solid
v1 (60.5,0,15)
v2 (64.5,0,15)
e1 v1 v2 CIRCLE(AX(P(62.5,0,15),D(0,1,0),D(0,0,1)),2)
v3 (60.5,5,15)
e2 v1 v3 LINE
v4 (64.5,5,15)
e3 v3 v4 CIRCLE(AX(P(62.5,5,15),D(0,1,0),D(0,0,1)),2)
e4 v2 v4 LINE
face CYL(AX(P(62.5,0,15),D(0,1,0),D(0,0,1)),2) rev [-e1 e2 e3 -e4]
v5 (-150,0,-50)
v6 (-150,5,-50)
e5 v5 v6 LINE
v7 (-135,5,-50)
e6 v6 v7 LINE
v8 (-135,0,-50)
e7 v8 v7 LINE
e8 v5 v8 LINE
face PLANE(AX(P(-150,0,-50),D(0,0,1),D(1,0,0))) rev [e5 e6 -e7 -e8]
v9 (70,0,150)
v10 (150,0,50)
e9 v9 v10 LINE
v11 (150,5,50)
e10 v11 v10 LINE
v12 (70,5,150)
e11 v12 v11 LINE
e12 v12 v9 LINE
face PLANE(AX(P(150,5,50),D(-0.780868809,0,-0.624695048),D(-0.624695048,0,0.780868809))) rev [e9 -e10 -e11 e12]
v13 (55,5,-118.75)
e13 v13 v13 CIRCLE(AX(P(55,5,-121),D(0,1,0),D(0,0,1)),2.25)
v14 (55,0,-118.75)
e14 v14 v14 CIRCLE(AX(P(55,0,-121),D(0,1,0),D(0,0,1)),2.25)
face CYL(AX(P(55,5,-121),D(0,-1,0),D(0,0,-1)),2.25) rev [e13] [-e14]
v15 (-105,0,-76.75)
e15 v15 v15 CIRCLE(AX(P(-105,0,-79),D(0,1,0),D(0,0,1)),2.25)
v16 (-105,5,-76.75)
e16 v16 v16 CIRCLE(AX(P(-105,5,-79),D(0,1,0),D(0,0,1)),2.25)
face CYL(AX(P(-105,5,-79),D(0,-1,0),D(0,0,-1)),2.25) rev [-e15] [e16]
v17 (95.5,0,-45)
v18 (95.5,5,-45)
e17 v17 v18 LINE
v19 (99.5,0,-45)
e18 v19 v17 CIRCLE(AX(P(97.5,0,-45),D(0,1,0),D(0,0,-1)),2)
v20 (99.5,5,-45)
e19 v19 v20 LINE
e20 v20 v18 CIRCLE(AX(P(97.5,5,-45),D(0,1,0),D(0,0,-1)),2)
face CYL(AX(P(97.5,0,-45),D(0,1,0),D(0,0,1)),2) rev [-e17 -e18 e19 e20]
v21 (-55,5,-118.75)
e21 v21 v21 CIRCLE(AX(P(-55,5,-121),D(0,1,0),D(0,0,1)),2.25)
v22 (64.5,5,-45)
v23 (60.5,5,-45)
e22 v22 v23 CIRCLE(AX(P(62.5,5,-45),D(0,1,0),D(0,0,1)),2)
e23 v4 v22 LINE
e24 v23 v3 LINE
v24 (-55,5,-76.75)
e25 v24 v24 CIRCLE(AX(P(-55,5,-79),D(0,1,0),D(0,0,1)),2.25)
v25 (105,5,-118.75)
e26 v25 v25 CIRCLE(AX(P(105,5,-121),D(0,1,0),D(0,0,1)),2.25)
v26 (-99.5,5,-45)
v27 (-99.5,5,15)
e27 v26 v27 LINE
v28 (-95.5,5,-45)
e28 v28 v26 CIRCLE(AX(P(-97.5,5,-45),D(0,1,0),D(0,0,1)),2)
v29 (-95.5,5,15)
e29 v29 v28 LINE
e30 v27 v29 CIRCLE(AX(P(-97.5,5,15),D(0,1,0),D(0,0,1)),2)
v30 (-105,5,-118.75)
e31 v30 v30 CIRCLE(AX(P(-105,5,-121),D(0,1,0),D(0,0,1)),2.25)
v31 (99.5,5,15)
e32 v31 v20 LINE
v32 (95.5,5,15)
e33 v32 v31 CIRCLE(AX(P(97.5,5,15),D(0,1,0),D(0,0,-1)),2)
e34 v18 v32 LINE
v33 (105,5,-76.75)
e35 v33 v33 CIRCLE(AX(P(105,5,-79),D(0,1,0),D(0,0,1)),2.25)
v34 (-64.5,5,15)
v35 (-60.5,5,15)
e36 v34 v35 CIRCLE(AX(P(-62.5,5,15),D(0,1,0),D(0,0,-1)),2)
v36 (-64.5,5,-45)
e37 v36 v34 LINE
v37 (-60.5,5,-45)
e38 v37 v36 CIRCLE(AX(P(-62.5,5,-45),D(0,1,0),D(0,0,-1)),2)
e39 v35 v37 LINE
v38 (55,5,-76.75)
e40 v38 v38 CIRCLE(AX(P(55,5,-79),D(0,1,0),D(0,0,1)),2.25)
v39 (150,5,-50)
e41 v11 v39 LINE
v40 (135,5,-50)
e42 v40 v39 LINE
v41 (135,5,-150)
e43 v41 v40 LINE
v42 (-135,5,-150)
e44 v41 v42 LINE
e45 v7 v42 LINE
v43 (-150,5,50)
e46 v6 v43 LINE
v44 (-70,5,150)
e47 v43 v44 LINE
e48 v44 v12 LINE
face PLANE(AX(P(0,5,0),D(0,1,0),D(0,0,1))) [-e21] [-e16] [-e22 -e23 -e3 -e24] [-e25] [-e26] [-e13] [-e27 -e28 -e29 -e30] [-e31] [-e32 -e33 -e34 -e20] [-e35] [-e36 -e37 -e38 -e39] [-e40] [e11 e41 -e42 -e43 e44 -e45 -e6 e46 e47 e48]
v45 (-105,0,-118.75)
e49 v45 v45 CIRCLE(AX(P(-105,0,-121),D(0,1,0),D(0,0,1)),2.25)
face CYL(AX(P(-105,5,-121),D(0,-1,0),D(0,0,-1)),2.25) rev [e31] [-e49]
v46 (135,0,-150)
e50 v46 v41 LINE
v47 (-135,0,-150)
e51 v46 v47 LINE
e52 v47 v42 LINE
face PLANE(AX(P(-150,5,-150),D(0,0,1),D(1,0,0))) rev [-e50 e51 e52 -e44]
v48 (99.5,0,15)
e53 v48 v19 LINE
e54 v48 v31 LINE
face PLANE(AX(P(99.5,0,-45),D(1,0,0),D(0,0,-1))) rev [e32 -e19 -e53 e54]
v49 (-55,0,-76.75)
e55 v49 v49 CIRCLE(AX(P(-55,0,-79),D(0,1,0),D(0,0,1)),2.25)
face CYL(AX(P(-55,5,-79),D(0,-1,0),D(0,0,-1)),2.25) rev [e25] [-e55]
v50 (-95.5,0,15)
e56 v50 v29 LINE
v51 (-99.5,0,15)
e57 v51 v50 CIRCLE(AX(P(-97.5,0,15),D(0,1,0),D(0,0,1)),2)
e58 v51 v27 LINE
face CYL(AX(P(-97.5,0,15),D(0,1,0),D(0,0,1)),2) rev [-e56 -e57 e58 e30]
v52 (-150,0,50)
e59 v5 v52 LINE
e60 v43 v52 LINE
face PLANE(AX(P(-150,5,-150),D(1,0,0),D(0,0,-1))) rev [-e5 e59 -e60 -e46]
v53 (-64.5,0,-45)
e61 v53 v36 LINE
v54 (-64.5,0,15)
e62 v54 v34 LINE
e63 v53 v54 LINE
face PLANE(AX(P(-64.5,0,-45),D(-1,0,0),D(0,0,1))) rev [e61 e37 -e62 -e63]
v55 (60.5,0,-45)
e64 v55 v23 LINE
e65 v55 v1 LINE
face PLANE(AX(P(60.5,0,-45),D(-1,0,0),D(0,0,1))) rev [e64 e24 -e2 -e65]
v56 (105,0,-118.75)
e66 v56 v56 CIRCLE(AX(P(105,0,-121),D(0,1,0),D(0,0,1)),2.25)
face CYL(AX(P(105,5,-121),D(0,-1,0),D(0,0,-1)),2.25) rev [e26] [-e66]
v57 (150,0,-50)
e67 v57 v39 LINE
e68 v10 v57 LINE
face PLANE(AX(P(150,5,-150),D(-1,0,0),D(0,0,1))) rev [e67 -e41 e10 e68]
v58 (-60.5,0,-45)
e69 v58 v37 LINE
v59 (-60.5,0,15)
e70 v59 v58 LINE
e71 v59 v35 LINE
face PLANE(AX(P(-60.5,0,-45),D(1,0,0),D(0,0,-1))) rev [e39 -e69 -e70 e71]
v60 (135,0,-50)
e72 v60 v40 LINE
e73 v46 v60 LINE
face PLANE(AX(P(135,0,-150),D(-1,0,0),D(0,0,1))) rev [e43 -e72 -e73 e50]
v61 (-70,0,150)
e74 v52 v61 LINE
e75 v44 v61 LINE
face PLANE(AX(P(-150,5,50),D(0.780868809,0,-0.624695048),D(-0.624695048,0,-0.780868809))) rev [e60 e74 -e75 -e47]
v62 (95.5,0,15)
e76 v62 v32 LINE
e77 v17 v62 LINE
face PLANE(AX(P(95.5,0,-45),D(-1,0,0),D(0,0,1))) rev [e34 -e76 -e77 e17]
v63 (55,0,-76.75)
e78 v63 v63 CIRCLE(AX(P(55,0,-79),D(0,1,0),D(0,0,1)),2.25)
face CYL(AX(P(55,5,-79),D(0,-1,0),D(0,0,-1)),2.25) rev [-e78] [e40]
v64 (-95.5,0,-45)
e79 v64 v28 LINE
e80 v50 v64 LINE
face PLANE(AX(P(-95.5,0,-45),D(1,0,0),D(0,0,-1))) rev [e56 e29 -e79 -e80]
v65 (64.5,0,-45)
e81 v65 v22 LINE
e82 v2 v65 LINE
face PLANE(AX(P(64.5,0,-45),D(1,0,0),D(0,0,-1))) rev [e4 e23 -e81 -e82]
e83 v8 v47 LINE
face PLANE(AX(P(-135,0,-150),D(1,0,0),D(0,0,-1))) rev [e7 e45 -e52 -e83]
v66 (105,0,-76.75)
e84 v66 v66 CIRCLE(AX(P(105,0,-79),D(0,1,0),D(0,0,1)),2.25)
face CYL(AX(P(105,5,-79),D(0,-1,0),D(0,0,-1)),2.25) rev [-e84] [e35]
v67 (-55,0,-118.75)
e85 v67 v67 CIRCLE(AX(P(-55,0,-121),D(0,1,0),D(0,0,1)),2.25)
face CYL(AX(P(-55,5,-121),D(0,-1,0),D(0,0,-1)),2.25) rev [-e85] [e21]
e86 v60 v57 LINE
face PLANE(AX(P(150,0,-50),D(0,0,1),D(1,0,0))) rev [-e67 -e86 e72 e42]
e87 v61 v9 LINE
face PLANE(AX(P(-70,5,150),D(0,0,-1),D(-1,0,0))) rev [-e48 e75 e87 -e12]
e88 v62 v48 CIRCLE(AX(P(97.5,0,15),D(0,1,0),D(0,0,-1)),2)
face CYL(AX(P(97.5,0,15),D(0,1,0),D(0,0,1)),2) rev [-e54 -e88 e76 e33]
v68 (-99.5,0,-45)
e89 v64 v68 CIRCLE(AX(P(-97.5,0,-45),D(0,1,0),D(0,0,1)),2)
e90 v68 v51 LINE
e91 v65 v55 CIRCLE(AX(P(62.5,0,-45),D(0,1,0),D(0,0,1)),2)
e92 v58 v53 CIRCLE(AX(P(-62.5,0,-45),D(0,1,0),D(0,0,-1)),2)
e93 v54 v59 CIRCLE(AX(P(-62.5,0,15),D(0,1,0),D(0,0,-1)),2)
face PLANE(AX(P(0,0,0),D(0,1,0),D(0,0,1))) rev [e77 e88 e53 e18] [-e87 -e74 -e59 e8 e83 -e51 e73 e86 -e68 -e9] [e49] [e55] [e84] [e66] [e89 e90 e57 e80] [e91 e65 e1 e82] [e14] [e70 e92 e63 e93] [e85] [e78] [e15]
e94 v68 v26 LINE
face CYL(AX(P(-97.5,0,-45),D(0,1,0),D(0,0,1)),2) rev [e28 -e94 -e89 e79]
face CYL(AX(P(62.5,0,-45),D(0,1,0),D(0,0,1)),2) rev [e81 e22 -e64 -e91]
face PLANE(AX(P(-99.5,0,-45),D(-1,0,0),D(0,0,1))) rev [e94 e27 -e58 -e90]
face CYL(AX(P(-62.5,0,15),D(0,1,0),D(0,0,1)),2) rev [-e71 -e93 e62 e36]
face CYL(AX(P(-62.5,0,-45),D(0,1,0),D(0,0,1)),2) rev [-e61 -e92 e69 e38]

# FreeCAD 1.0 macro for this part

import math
import FreeCAD as App
import Part
import Sketcher
Q = App.Units.Quantity

doc = App.newDocument("Part")
body = doc.addObject("PartDesign::Body", "Body")

# Sketch on XZ plane
sketch1 = body.newObject("Sketcher::SketchObject", "Sketch")
sketch1.AttachmentSupport = (doc.getObject("XZ_Plane"), [""])
sketch1.MapMode = "FlatFace"
sketch1.addGeometry(Part.LineSegment(App.Vector(150, -150, 0), App.Vector(-150, -150, 0)), False)
sketch1.addGeometry(Part.LineSegment(App.Vector(-150, -150, 0), App.Vector(-150, 50, 0)), False)
sketch1.addGeometry(Part.LineSegment(App.Vector(-150, 50, 0), App.Vector(-70, 150, 0)), False)
sketch1.addGeometry(Part.LineSegment(App.Vector(-70, 150, 0), App.Vector(70, 150, 0)), False)
sketch1.addGeometry(Part.LineSegment(App.Vector(70, 150, 0), App.Vector(150, 50, 0)), False)
sketch1.addGeometry(Part.LineSegment(App.Vector(150, 50, 0), App.Vector(150, -150, 0)), False)
sketch1.addGeometry(Part.Circle(App.Vector(105, -79, 0), App.Vector(0, 0, 1), 2.2), False)
sketch1.addGeometry(Part.Circle(App.Vector(55, -79, 0), App.Vector(0, 0, 1), 2.2), False)
sketch1.addGeometry(Part.Circle(App.Vector(-55, -79, 0), App.Vector(0, 0, 1), 2.2), False)
sketch1.addGeometry(Part.Circle(App.Vector(-105, -79, 0), App.Vector(0, 0, 1), 2.2), False)
sketch1.addGeometry(Part.Circle(App.Vector(105, -121, 0), App.Vector(0, 0, 1), 2.2), False)
sketch1.addGeometry(Part.Circle(App.Vector(55, -121, 0), App.Vector(0, 0, 1), 2.2), False)
sketch1.addGeometry(Part.Circle(App.Vector(-55, -121, 0), App.Vector(0, 0, 1), 2.2), False)
sketch1.addGeometry(Part.Circle(App.Vector(-105, -121, 0), App.Vector(0, 0, 1), 2.2), False)
sketch1.addConstraint(Sketcher.Constraint("Coincident", 0, 2, 1, 1))
sketch1.addConstraint(Sketcher.Constraint("Coincident", 1, 2, 2, 1))
sketch1.addConstraint(Sketcher.Constraint("Coincident", 2, 2, 3, 1))
sketch1.addConstraint(Sketcher.Constraint("Coincident", 3, 2, 4, 1))
sketch1.addConstraint(Sketcher.Constraint("Coincident", 4, 2, 5, 1))
sketch1.addConstraint(Sketcher.Constraint("Coincident", 5, 2, 0, 1))
sketch1.addConstraint(Sketcher.Constraint("Horizontal", 0))
sketch1.addConstraint(Sketcher.Constraint("Vertical", 1))
sketch1.addConstraint(Sketcher.Constraint("Horizontal", 3))
sketch1.addConstraint(Sketcher.Constraint("Vertical", 5))
sketch1.addConstraint(Sketcher.Constraint("Equal", 6, 7))
sketch1.addConstraint(Sketcher.Constraint("Equal", 7, 8))
sketch1.addConstraint(Sketcher.Constraint("Equal", 8, 9))
sketch1.addConstraint(Sketcher.Constraint("Equal", 9, 10))
sketch1.addConstraint(Sketcher.Constraint("Equal", 10, 11))
sketch1.addConstraint(Sketcher.Constraint("Equal", 11, 12))
sketch1.addConstraint(Sketcher.Constraint("Equal", 12, 13))
sketch1.addConstraint(Sketcher.Constraint("Symmetric", 7, 3, 8, 3, -2))
sketch1.addConstraint(Sketcher.Constraint("Symmetric", 6, 3, 9, 3, -2))
sketch1.addConstraint(Sketcher.Constraint("Symmetric", 11, 3, 12, 3, -2))
sketch1.addConstraint(Sketcher.Constraint("Symmetric", 10, 3, 13, 3, -2))
sketch1.addConstraint(Sketcher.Constraint("Symmetric", 1, 2, 4, 2, -2))
sketch1.addConstraint(Sketcher.Constraint("Horizontal", 6, 3, 7, 3))
sketch1.addConstraint(Sketcher.Constraint("Horizontal", 10, 3, 11, 3))
sketch1.addConstraint(Sketcher.Constraint("Vertical", 6, 3, 10, 3))
sketch1.addConstraint(Sketcher.Constraint("Vertical", 7, 3, 11, 3))
sketch1.addConstraint(Sketcher.Constraint("Equal", 2, 4))
sketch1.addConstraint(Sketcher.Constraint("Diameter", 6, Q("4.5 mm")))
sketch1.addConstraint(Sketcher.Constraint("DistanceX", 0, 2, 0, 1, Q("300 mm")))
sketch1.addConstraint(Sketcher.Constraint("DistanceX", 3, 1, 3, 2, Q("140 mm")))
sketch1.addConstraint(Sketcher.Constraint("DistanceY", 1, 1, 1, 2, Q("200 mm")))
sketch1.addConstraint(Sketcher.Constraint("DistanceX", -1, 1, 6, 3, Q("105 mm")))
sketch1.addConstraint(Sketcher.Constraint("DistanceY", 6, 3, -1, 1, Q("79 mm")))
sketch1.addConstraint(Sketcher.Constraint("DistanceX", -1, 1, 7, 3, Q("55 mm")))
sketch1.addConstraint(Sketcher.Constraint("DistanceY", 10, 3, -1, 1, Q("121 mm")))
sketch1.addConstraint(Sketcher.Constraint("DistanceY", 0, 2, -1, 1, Q("150 mm")))
sketch1.addConstraint(Sketcher.Constraint("DistanceY", -1, 1, 2, 2, Q("150 mm")))
pad1 = body.newObject("PartDesign::Pad", "Pad")
pad1.Profile = sketch1
pad1.Length = 5
pad1.Reversed = True

# Sketch on XZ plane
sketch2 = body.newObject("Sketcher::SketchObject", "Sketch001")
sketch2.AttachmentSupport = (doc.getObject("XZ_Plane"), [""])
sketch2.MapMode = "FlatFace"
sketch2.AttachmentOffset = App.Placement(App.Vector(0, 0, -5), App.Rotation())
sketch2.addGeometry(Part.LineSegment(App.Vector(-150, -150, 0), App.Vector(-150, -50, 0)), False)
sketch2.addGeometry(Part.LineSegment(App.Vector(-150, -50, 0), App.Vector(-135, -50, 0)), False)
sketch2.addGeometry(Part.LineSegment(App.Vector(-135, -50, 0), App.Vector(-135, -150, 0)), False)
sketch2.addGeometry(Part.LineSegment(App.Vector(-135, -150, 0), App.Vector(-150, -150, 0)), False)
sketch2.addGeometry(Part.LineSegment(App.Vector(135, -150, 0), App.Vector(135, -50, 0)), False)
sketch2.addGeometry(Part.LineSegment(App.Vector(135, -50, 0), App.Vector(150, -50, 0)), False)
sketch2.addGeometry(Part.LineSegment(App.Vector(150, -50, 0), App.Vector(150, -150, 0)), False)
sketch2.addGeometry(Part.LineSegment(App.Vector(150, -150, 0), App.Vector(135, -150, 0)), False)
sketch2.addConstraint(Sketcher.Constraint("Coincident", 0, 2, 1, 1))
sketch2.addConstraint(Sketcher.Constraint("Coincident", 1, 2, 2, 1))
sketch2.addConstraint(Sketcher.Constraint("Coincident", 2, 2, 3, 1))
sketch2.addConstraint(Sketcher.Constraint("Coincident", 3, 2, 0, 1))
sketch2.addConstraint(Sketcher.Constraint("Coincident", 4, 2, 5, 1))
sketch2.addConstraint(Sketcher.Constraint("Coincident", 5, 2, 6, 1))
sketch2.addConstraint(Sketcher.Constraint("Coincident", 6, 2, 7, 1))
sketch2.addConstraint(Sketcher.Constraint("Coincident", 7, 2, 4, 1))
sketch2.addConstraint(Sketcher.Constraint("Vertical", 0))
sketch2.addConstraint(Sketcher.Constraint("Horizontal", 1))
sketch2.addConstraint(Sketcher.Constraint("Vertical", 2))
sketch2.addConstraint(Sketcher.Constraint("Horizontal", 3))
sketch2.addConstraint(Sketcher.Constraint("Vertical", 4))
sketch2.addConstraint(Sketcher.Constraint("Horizontal", 5))
sketch2.addConstraint(Sketcher.Constraint("Vertical", 6))
sketch2.addConstraint(Sketcher.Constraint("Horizontal", 7))
sketch2.addConstraint(Sketcher.Constraint("Symmetric", 1, 2, 4, 2, -2))
sketch2.addConstraint(Sketcher.Constraint("Symmetric", 3, 2, 6, 2, -2))
sketch2.addConstraint(Sketcher.Constraint("DistanceX", 1, 1, 1, 2, Q("15 mm")))
sketch2.addConstraint(Sketcher.Constraint("DistanceY", 0, 1, 0, 2, Q("100 mm")))
sketch2.addConstraint(Sketcher.Constraint("DistanceX", 0, 2, -1, 1, Q("150 mm")))
sketch2.addConstraint(Sketcher.Constraint("DistanceY", 0, 2, -1, 1, Q("50 mm")))
pocket1 = body.newObject("PartDesign::Pocket", "Pocket")
pocket1.Profile = sketch2
pocket1.Length = 5
pocket1.Reversed = True

# Sketch on XZ plane
sketch3 = body.newObject("Sketcher::SketchObject", "Sketch002")
sketch3.AttachmentSupport = (doc.getObject("XZ_Plane"), [""])
sketch3.MapMode = "FlatFace"
sketch3.AttachmentOffset = App.Placement(App.Vector(0, 0, -5), App.Rotation())
sketch3.addGeometry(Part.LineSegment(App.Vector(-95.5, 15, 0), App.Vector(-95.5, -45, 0)), False)
sketch3.addGeometry(Part.ArcOfCircle(Part.Circle(App.Vector(-97.5, -45, 0), App.Vector(0, 0, 1), 2), math.radians(180), math.radians(360)), False)
sketch3.addGeometry(Part.LineSegment(App.Vector(-99.5, -45, 0), App.Vector(-99.5, 15, 0)), False)
sketch3.addGeometry(Part.ArcOfCircle(Part.Circle(App.Vector(-97.5, 15, 0), App.Vector(0, 0, 1), 2), math.radians(0), math.radians(180)), False)
sketch3.addGeometry(Part.LineSegment(App.Vector(-64.5, -45, 0), App.Vector(-64.5, 15, 0)), False)
sketch3.addGeometry(Part.ArcOfCircle(Part.Circle(App.Vector(-62.5, 15, 0), App.Vector(0, 0, 1), 2), math.radians(0), math.radians(180)), False)
sketch3.addGeometry(Part.LineSegment(App.Vector(-60.5, 15, 0), App.Vector(-60.5, -45, 0)), False)
sketch3.addGeometry(Part.ArcOfCircle(Part.Circle(App.Vector(-62.5, -45, 0), App.Vector(0, 0, 1), 2), math.radians(180), math.radians(360)), False)
sketch3.addGeometry(Part.LineSegment(App.Vector(95.5, -45, 0), App.Vector(95.5, 15, 0)), False)
sketch3.addGeometry(Part.ArcOfCircle(Part.Circle(App.Vector(97.5, 15, 0), App.Vector(0, 0, 1), 2), math.radians(0), math.radians(180)), False)
sketch3.addGeometry(Part.LineSegment(App.Vector(99.5, 15, 0), App.Vector(99.5, -45, 0)), False)
sketch3.addGeometry(Part.ArcOfCircle(Part.Circle(App.Vector(97.5, -45, 0), App.Vector(0, 0, 1), 2), math.radians(180), math.radians(360)), False)
sketch3.addGeometry(Part.LineSegment(App.Vector(64.5, 15, 0), App.Vector(64.5, -45, 0)), False)
sketch3.addGeometry(Part.ArcOfCircle(Part.Circle(App.Vector(62.5, -45, 0), App.Vector(0, 0, 1), 2), math.radians(180), math.radians(360)), False)
sketch3.addGeometry(Part.LineSegment(App.Vector(60.5, -45, 0), App.Vector(60.5, 15, 0)), False)
sketch3.addGeometry(Part.ArcOfCircle(Part.Circle(App.Vector(62.5, 15, 0), App.Vector(0, 0, 1), 2), math.radians(0), math.radians(180)), False)
sketch3.addConstraint(Sketcher.Constraint("Tangent", 0, 2, 1, 2))
sketch3.addConstraint(Sketcher.Constraint("Tangent", 1, 1, 2, 1))
sketch3.addConstraint(Sketcher.Constraint("Tangent", 2, 2, 3, 2))
sketch3.addConstraint(Sketcher.Constraint("Tangent", 3, 1, 0, 1))
sketch3.addConstraint(Sketcher.Constraint("Tangent", 4, 2, 5, 2))
sketch3.addConstraint(Sketcher.Constraint("Tangent", 5, 1, 6, 1))
sketch3.addConstraint(Sketcher.Constraint("Tangent", 6, 2, 7, 2))
sketch3.addConstraint(Sketcher.Constraint("Tangent", 7, 1, 4, 1))
sketch3.addConstraint(Sketcher.Constraint("Tangent", 8, 2, 9, 2))
sketch3.addConstraint(Sketcher.Constraint("Tangent", 9, 1, 10, 1))
sketch3.addConstraint(Sketcher.Constraint("Tangent", 10, 2, 11, 2))
sketch3.addConstraint(Sketcher.Constraint("Tangent", 11, 1, 8, 1))
sketch3.addConstraint(Sketcher.Constraint("Tangent", 12, 2, 13, 2))
sketch3.addConstraint(Sketcher.Constraint("Tangent", 13, 1, 14, 1))
sketch3.addConstraint(Sketcher.Constraint("Tangent", 14, 2, 15, 2))
sketch3.addConstraint(Sketcher.Constraint("Tangent", 15, 1, 12, 1))
sketch3.addConstraint(Sketcher.Constraint("Vertical", 0))
sketch3.addConstraint(Sketcher.Constraint("Vertical", 2))
sketch3.addConstraint(Sketcher.Constraint("Vertical", 4))
sketch3.addConstraint(Sketcher.Constraint("Vertical", 6))
sketch3.addConstraint(Sketcher.Constraint("Vertical", 8))
sketch3.addConstraint(Sketcher.Constraint("Vertical", 10))
sketch3.addConstraint(Sketcher.Constraint("Vertical", 12))
sketch3.addConstraint(Sketcher.Constraint("Vertical", 14))
sketch3.addConstraint(Sketcher.Constraint("Equal", 3, 5))
sketch3.addConstraint(Sketcher.Constraint("Equal", 7, 9))
sketch3.addConstraint(Sketcher.Constraint("Equal", 11, 13))
sketch3.addConstraint(Sketcher.Constraint("Symmetric", 3, 3, 9, 3, -2))
sketch3.addConstraint(Sketcher.Constraint("Symmetric", 7, 3, 13, 3, -2))
sketch3.addConstraint(Sketcher.Constraint("Horizontal", 3, 3, 5, 3))
sketch3.addConstraint(Sketcher.Constraint("Horizontal", 1, 3, 7, 3))
sketch3.addConstraint(Sketcher.Constraint("Horizontal", 7, 3, 11, 3))
sketch3.addConstraint(Sketcher.Constraint("Horizontal", 9, 3, 15, 3))
sketch3.addConstraint(Sketcher.Constraint("Radius", 1, Q("2 mm")))
sketch3.addConstraint(Sketcher.Constraint("DistanceY", 0, 2, 0, 1, Q("60 mm")))
sketch3.addConstraint(Sketcher.Constraint("DistanceY", 1, 3, -1, 1, Q("45 mm")))
sketch3.addConstraint(Sketcher.Constraint("DistanceX", 3, 3, 5, 3, Q("35 mm")))
sketch3.addConstraint(Sketcher.Constraint("DistanceX", 5, 3, 9, 3, Q("160 mm")))
pocket2 = body.newObject("PartDesign::Pocket", "Pocket001")
pocket2.Profile = sketch3
pocket2.Length = 5
pocket2.Reversed = True

doc.recompute()
